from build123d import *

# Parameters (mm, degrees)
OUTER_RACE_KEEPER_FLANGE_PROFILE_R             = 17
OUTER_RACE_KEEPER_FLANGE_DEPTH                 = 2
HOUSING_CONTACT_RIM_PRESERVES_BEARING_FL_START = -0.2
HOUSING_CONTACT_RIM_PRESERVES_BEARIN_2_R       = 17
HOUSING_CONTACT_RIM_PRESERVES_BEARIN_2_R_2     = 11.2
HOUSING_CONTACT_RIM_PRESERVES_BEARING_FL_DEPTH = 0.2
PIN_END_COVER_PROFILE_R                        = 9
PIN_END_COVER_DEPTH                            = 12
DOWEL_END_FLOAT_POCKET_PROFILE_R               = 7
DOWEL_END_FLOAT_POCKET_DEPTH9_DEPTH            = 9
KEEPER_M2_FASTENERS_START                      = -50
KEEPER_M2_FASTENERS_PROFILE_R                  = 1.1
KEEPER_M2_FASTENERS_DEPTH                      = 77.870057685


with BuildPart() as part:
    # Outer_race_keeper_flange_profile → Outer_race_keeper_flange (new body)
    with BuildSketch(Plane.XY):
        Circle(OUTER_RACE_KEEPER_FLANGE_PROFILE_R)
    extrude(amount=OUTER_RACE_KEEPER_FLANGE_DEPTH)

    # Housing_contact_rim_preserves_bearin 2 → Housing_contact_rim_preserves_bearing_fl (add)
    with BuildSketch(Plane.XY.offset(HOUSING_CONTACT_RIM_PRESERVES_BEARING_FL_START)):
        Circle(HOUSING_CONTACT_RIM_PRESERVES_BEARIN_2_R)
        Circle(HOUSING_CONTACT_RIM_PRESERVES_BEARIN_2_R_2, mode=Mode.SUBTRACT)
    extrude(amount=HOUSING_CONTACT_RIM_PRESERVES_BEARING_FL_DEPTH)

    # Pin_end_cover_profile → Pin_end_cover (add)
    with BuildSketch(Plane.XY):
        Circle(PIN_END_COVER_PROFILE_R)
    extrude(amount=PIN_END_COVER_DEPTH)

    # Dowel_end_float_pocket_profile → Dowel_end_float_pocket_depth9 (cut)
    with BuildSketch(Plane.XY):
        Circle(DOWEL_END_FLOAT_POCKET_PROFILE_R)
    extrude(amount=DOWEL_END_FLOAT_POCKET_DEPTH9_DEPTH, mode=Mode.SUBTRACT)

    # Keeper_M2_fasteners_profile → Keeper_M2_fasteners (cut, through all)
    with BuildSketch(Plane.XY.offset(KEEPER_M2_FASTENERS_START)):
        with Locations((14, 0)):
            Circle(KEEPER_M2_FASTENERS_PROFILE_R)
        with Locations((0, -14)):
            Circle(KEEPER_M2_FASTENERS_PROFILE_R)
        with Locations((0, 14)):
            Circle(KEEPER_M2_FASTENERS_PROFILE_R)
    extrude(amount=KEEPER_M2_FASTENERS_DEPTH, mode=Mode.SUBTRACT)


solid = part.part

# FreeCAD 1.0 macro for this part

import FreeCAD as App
import Part
import Sketcher

V = App.Vector
Q = App.Units.Quantity

doc = App.newDocument("Part")
params = doc.addObject("Spreadsheet::Sheet", "Params")
for row, (alias, value) in enumerate([
    ("sketch1_diameter", "34 mm"),
    ("pad1_length", "2 mm"),
    ("sketch2_diameter", "34 mm"),
    ("sketch2_diameter2", "22.4 mm"),
    ("pad2_length", "0.2 mm"),
    ("sketch3_diameter", "18 mm"),
    ("pad3_length", "12 mm"),
    ("sketch4_diameter", "14 mm"),
    ("pocket1_length", "9 mm"),
    ("sketch5_diameter", "2.2 mm"),
], start=1):
    params.set(f"A{row}", alias)
    params.set(f"B{row}", "=" + value)
    params.setAlias(f"B{row}", alias)

body = doc.addObject("PartDesign::Body", "Body")

sketch1 = doc.addObject("Sketcher::SketchObject", "Sketch")
body.addObject(sketch1)
sketch1.AttachmentSupport = (doc.XY_Plane, [""])
sketch1.MapMode = "FlatFace"
sketch1.addGeometry(Part.Circle(V(0, 0, 0), V(0, 0, 1), 17), False)
sketch1.addConstraint([
    Sketcher.Constraint("Coincident", 0, 3, -1, 1),
    Sketcher.Constraint("Diameter", 0, Q("34 mm")),
])
sketch1.setExpression("Constraints[1]", "Params.sketch1_diameter")
pad1 = doc.addObject("PartDesign::Pad", "Pad")
body.addObject(pad1)
pad1.Profile = sketch1
pad1.setExpression("Length", "Params.pad1_length")

sketch2 = doc.addObject("Sketcher::SketchObject", "Sketch001")
body.addObject(sketch2)
sketch2.AttachmentSupport = (doc.XY_Plane, [""])
sketch2.MapMode = "FlatFace"
sketch2.AttachmentOffset = App.Placement(V(0, 0, -0.2), App.Rotation())
sketch2.addGeometry([
    Part.Circle(V(0, 0, 0), V(0, 0, 1), 17),
    Part.Circle(V(0, 0, 0), V(0, 0, 1), 11),
], False)
sketch2.addConstraint([
    Sketcher.Constraint("Coincident", 0, 3, -1, 1),
    Sketcher.Constraint("Coincident", 1, 3, -1, 1),
    Sketcher.Constraint("Diameter", 0, Q("34 mm")),
    Sketcher.Constraint("Diameter", 1, Q("22.4 mm")),
])
sketch2.setExpression("Constraints[2]", "Params.sketch2_diameter")
sketch2.setExpression("Constraints[3]", "Params.sketch2_diameter2")
pad2 = doc.addObject("PartDesign::Pad", "Pad001")
body.addObject(pad2)
pad2.Profile = sketch2
pad2.setExpression("Length", "Params.pad2_length")

sketch3 = doc.addObject("Sketcher::SketchObject", "Sketch002")
body.addObject(sketch3)
sketch3.AttachmentSupport = (doc.XY_Plane, [""])
sketch3.MapMode = "FlatFace"
sketch3.addGeometry(Part.Circle(V(0, 0, 0), V(0, 0, 1), 9), False)
sketch3.addConstraint([
    Sketcher.Constraint("Coincident", 0, 3, -1, 1),
    Sketcher.Constraint("Diameter", 0, Q("18 mm")),
])
sketch3.setExpression("Constraints[1]", "Params.sketch3_diameter")
pad3 = doc.addObject("PartDesign::Pad", "Pad002")
body.addObject(pad3)
pad3.Profile = sketch3
pad3.setExpression("Length", "Params.pad3_length")

sketch4 = doc.addObject("Sketcher::SketchObject", "Sketch003")
body.addObject(sketch4)
sketch4.AttachmentSupport = (doc.XY_Plane, [""])
sketch4.MapMode = "FlatFace"
sketch4.addGeometry(Part.Circle(V(0, 0, 0), V(0, 0, 1), 7), False)
sketch4.addConstraint([
    Sketcher.Constraint("Coincident", 0, 3, -1, 1),
    Sketcher.Constraint("Diameter", 0, Q("14 mm")),
])
sketch4.setExpression("Constraints[1]", "Params.sketch4_diameter")
pocket1 = doc.addObject("PartDesign::Pocket", "Pocket")
body.addObject(pocket1)
pocket1.Profile = sketch4
pocket1.setExpression("Length", "Params.pocket1_length")
pocket1.Reversed = True

sketch5 = doc.addObject("Sketcher::SketchObject", "Sketch004")
body.addObject(sketch5)
sketch5.AttachmentSupport = (doc.XY_Plane, [""])
sketch5.MapMode = "FlatFace"
sketch5.AttachmentOffset = App.Placement(V(0, 0, -50), App.Rotation())
sketch5.addGeometry([
    Part.Circle(V(14, 0, 0), V(0, 0, 1), 1.1),
    Part.Circle(V(0, -14, 0), V(0, 0, 1), 1.1),
    Part.Circle(V(0, 14, 0), V(0, 0, 1), 1.1),
], False)
sketch5.addConstraint([
    Sketcher.Constraint("Equal", 0, 1),
    Sketcher.Constraint("Equal", 1, 2),
    Sketcher.Constraint("Symmetric", 1, 3, 2, 3, -1, 1),
    Sketcher.Constraint("PointOnObject", 0, 3, -1),
    Sketcher.Constraint("PointOnObject", 1, 3, -2),
    Sketcher.Constraint("Diameter", 0, Q("2.2 mm")),
    Sketcher.Constraint("DistanceX", -1, 1, 0, 3, Q("14 mm")),
    Sketcher.Constraint("DistanceY", 1, 3, -1, 1, Q("14 mm")),
])
sketch5.setExpression("Constraints[5]", "Params.sketch5_diameter")
pocket2 = doc.addObject("PartDesign::Pocket", "Pocket001")
body.addObject(pocket2)
pocket2.Profile = sketch5
pocket2.Type = "ThroughAll"
pocket2.Reversed = True

doc.recompute()
